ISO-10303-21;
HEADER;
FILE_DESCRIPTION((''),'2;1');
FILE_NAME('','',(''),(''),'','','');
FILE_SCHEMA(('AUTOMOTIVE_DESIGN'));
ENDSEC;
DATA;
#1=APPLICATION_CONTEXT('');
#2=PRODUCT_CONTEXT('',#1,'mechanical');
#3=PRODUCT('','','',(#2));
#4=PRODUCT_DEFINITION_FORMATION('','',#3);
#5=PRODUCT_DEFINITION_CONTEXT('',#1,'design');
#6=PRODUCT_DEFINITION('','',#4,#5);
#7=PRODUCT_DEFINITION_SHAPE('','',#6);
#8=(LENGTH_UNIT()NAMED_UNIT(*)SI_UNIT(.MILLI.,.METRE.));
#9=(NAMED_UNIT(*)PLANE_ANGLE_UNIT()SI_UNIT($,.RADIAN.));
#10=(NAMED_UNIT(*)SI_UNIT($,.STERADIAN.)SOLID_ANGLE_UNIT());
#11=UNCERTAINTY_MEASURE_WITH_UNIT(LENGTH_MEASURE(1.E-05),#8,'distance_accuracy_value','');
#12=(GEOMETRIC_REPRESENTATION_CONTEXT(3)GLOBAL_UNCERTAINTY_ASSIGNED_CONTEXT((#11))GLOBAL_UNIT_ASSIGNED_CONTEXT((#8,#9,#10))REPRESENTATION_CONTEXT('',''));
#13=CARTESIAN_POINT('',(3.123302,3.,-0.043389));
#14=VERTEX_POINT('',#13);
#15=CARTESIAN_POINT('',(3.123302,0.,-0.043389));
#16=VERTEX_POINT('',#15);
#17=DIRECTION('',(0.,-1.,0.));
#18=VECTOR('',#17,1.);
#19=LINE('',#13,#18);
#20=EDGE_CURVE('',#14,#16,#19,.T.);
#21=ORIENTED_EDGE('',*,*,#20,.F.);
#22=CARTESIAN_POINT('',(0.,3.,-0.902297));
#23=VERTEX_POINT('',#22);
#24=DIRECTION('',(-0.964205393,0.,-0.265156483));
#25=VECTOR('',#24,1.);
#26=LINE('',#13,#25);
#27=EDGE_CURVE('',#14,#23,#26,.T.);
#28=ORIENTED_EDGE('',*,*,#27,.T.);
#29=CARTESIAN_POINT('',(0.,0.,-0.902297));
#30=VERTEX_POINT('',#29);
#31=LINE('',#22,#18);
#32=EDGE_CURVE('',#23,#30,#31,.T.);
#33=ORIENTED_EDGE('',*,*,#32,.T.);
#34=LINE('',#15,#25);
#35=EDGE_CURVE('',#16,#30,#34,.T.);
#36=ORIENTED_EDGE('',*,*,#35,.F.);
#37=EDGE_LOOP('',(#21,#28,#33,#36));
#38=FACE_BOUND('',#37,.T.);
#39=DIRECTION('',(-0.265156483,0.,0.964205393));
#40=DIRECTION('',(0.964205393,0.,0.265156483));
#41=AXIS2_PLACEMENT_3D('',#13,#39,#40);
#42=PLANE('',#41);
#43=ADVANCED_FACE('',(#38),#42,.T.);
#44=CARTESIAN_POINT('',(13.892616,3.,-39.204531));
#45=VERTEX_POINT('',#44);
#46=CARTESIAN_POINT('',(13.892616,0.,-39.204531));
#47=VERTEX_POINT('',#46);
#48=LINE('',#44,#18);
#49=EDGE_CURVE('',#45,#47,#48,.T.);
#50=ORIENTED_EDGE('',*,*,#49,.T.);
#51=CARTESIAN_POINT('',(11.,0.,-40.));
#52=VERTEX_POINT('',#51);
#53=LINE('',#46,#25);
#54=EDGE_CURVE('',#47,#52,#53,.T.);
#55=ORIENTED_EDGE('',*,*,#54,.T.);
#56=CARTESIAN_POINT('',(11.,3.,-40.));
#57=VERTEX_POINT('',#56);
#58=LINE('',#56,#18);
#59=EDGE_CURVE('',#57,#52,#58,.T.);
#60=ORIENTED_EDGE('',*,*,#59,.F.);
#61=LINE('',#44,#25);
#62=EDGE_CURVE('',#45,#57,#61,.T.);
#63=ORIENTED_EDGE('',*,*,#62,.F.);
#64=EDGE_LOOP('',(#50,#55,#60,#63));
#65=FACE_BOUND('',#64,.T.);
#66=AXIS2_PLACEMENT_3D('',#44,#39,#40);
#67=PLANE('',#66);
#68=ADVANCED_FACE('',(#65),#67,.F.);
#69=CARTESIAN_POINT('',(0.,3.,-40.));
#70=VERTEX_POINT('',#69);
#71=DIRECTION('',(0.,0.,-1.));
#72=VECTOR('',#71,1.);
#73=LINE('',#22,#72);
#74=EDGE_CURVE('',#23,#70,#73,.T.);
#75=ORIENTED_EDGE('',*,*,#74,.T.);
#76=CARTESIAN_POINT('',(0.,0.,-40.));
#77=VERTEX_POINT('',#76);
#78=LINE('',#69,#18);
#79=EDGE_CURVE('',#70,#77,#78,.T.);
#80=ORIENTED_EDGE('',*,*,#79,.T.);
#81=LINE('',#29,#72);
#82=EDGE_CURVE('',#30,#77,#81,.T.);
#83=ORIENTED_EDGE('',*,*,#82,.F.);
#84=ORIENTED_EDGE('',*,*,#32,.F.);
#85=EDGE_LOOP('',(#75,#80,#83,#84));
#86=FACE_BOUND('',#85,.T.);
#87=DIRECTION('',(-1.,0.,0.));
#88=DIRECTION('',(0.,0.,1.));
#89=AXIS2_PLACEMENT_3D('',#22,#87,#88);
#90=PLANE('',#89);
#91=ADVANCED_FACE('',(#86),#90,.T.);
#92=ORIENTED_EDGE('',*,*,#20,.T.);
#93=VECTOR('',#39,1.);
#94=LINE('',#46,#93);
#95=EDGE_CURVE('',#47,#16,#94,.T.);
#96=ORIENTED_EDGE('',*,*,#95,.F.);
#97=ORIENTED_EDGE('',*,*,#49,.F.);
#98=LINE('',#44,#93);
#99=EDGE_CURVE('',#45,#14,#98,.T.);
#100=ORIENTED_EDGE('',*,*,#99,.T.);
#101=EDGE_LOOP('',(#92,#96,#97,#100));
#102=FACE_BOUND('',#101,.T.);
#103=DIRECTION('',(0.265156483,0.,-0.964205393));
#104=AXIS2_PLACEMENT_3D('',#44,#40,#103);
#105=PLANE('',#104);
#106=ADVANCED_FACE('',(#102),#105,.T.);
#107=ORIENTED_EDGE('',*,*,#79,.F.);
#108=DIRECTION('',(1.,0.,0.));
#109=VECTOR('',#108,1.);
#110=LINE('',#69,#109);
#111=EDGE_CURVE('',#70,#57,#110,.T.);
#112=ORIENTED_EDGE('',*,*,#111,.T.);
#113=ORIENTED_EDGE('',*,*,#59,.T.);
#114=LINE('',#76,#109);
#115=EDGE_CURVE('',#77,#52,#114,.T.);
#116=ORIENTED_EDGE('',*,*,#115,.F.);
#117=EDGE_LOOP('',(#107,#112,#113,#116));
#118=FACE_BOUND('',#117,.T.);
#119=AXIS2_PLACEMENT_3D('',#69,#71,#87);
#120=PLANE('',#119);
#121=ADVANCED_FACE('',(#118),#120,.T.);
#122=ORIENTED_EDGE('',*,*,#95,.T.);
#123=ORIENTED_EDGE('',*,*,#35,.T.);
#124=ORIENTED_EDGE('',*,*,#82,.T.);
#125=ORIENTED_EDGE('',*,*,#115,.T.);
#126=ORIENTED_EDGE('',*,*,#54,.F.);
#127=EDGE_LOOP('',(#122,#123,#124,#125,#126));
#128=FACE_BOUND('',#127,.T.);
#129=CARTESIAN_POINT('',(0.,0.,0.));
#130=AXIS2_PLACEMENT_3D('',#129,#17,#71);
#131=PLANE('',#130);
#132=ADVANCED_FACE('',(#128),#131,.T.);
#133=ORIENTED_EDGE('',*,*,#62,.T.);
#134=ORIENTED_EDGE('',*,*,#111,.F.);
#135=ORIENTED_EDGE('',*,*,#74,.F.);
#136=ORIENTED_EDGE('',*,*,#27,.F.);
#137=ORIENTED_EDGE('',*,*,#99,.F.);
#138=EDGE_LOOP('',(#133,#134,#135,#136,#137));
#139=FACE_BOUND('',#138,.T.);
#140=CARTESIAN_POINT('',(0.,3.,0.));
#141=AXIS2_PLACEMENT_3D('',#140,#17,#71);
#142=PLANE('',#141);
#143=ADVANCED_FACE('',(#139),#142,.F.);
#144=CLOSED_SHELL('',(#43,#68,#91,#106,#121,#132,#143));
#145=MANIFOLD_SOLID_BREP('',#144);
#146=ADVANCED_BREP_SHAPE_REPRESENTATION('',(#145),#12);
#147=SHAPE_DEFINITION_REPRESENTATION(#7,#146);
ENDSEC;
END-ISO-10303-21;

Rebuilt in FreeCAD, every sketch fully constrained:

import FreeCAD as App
import Part
import Sketcher
Q = App.Units.Quantity

doc = App.newDocument("Part")
params = doc.addObject("Spreadsheet::Sheet", "Params")
for row, (alias, value) in enumerate([
    ("sketch1_width", "11 mm"),
    ("sketch1_length", "3 mm"),
    ("pad1_length", "3 mm"),
], start=1):
    params.set(f"A{row}", alias)
    params.set(f"B{row}", "=" + value)
    params.setAlias(f"B{row}", alias)

body = doc.addObject("PartDesign::Body", "Body")

sketch1 = doc.addObject("Sketcher::SketchObject", "Sketch")
body.addObject(sketch1)
sketch1.AttachmentSupport = (doc.XZ_Plane, [""])
sketch1.MapMode = "FlatFace"
sketch1.addGeometry([
    Part.LineSegment(App.Vector(13.9, -39.2, 0), App.Vector(11, -40, 0)),
    Part.LineSegment(App.Vector(11, -40, 0), App.Vector(0, -40, 0)),
    Part.LineSegment(App.Vector(0, -40, 0), App.Vector(0, -0.9, 0)),
    Part.LineSegment(App.Vector(0, -0.9, 0), App.Vector(3.1, 0, 0)),
    Part.LineSegment(App.Vector(3.1, 0, 0), App.Vector(13.9, -39.2, 0)),
], False)
sketch1.addConstraint([
    Sketcher.Constraint("Coincident", 0, 2, 1, 1),
    Sketcher.Constraint("Coincident", 1, 2, 2, 1),
    Sketcher.Constraint("Coincident", 2, 2, 3, 1),
    Sketcher.Constraint("Coincident", 3, 2, 4, 1),
    Sketcher.Constraint("Coincident", 4, 2, 0, 1),
    Sketcher.Constraint("Horizontal", 1),
    Sketcher.Constraint("Vertical", 2),
    Sketcher.Constraint("PointOnObject", 1, 2, -2),
    Sketcher.Constraint("Parallel", 0, 3),
    Sketcher.Constraint("Perpendicular", 3, 4),
    Sketcher.Constraint("DistanceX", 1, 2, 1, 1, Q("11 mm")),
    Sketcher.Constraint("Distance", 0, Q("3 mm")),
    Sketcher.Constraint("DistanceY", 0, 2, -1, 1, Q("40 mm")),
    Sketcher.Constraint("Distance", 3, Q("3.23925 mm")),
    Sketcher.Constraint("DistanceY", 2, 1, 2, 2, Q("39.097703 mm")),
])
sketch1.setExpression("Constraints[10]", "Params.sketch1_width")
sketch1.setExpression("Constraints[11]", "Params.sketch1_length")
pad1 = doc.addObject("PartDesign::Pad", "Pad")
body.addObject(pad1)
pad1.Profile = sketch1
pad1.setExpression("Length", "Params.pad1_length")
pad1.Reversed = True

doc.recompute()
